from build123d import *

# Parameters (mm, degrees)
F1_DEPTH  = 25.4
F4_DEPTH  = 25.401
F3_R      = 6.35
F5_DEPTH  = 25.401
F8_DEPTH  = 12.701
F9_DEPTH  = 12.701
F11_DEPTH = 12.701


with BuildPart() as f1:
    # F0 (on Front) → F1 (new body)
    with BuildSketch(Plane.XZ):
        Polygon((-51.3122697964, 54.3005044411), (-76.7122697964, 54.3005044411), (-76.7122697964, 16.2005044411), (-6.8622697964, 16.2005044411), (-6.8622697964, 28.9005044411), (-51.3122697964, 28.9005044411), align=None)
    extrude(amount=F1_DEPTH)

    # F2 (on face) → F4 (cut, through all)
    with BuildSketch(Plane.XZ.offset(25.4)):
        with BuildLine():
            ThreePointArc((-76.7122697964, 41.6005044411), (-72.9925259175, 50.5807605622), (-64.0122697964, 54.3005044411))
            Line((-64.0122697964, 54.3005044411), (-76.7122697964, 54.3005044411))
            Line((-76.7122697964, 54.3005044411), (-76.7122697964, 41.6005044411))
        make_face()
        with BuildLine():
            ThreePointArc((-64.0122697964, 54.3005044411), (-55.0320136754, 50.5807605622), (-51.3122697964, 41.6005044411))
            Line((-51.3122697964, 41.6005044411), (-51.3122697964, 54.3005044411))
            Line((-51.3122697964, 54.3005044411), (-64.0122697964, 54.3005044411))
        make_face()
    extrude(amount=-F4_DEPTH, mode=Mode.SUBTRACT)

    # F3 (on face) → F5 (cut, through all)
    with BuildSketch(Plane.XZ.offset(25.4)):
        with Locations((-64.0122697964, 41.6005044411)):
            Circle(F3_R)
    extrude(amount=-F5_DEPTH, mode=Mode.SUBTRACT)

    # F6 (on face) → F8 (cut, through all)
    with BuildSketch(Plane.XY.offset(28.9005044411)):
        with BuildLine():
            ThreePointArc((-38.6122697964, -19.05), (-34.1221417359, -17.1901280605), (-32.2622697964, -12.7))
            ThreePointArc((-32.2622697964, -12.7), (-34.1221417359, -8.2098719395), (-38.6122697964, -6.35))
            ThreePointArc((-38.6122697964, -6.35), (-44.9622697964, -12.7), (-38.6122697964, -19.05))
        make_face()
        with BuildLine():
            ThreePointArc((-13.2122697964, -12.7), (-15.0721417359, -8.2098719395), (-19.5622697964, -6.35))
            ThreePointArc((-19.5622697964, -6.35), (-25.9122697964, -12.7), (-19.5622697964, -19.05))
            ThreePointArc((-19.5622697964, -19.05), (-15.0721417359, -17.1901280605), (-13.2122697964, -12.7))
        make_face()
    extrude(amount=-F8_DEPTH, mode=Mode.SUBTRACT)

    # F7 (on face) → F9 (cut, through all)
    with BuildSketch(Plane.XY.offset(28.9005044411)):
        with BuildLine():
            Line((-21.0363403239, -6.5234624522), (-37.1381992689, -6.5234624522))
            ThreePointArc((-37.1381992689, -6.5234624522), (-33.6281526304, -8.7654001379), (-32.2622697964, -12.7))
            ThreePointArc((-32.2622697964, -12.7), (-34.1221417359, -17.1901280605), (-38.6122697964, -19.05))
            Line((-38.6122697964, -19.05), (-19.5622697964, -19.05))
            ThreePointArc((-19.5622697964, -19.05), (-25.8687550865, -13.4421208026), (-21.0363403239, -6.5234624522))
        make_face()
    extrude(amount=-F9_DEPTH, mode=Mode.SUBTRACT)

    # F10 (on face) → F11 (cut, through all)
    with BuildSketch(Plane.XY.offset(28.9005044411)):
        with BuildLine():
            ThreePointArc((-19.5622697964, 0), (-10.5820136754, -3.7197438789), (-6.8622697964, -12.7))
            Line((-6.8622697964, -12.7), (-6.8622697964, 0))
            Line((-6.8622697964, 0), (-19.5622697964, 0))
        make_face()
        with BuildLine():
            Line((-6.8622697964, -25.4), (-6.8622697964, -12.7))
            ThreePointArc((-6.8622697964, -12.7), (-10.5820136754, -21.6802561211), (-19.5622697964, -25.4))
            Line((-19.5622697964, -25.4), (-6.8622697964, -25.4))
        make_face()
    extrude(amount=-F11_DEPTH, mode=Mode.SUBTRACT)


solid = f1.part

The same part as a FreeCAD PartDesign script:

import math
import FreeCAD as App
import Part
import Sketcher
Q = App.Units.Quantity

doc = App.newDocument("Part")
body = doc.addObject("PartDesign::Body", "Body")

# Sketch on XZ plane
sketch1 = doc.addObject("Sketcher::SketchObject", "Sketch")
body.addObject(sketch1)
sketch1.AttachmentSupport = (doc.XZ_Plane, [""])
sketch1.MapMode = "FlatFace"
sketch1.addGeometry(Part.LineSegment(App.Vector(-51, 54, 0), App.Vector(-77, 54, 0)), False)
sketch1.addGeometry(Part.LineSegment(App.Vector(-77, 54, 0), App.Vector(-77, 16, 0)), False)
sketch1.addGeometry(Part.LineSegment(App.Vector(-77, 16, 0), App.Vector(-7, 16, 0)), False)
sketch1.addGeometry(Part.LineSegment(App.Vector(-7, 16, 0), App.Vector(-7, 29, 0)), False)
sketch1.addGeometry(Part.LineSegment(App.Vector(-7, 29, 0), App.Vector(-51, 29, 0)), False)
sketch1.addGeometry(Part.LineSegment(App.Vector(-51, 29, 0), App.Vector(-51, 54, 0)), False)
sketch1.addConstraint(Sketcher.Constraint("Coincident", 0, 2, 1, 1))
sketch1.addConstraint(Sketcher.Constraint("Coincident", 1, 2, 2, 1))
sketch1.addConstraint(Sketcher.Constraint("Coincident", 2, 2, 3, 1))
sketch1.addConstraint(Sketcher.Constraint("Coincident", 3, 2, 4, 1))
sketch1.addConstraint(Sketcher.Constraint("Coincident", 4, 2, 5, 1))
sketch1.addConstraint(Sketcher.Constraint("Coincident", 5, 2, 0, 1))
sketch1.addConstraint(Sketcher.Constraint("Horizontal", 0))
sketch1.addConstraint(Sketcher.Constraint("Vertical", 1))
sketch1.addConstraint(Sketcher.Constraint("Horizontal", 2))
sketch1.addConstraint(Sketcher.Constraint("Vertical", 3))
sketch1.addConstraint(Sketcher.Constraint("Horizontal", 4))
sketch1.addConstraint(Sketcher.Constraint("Vertical", 5))
sketch1.addConstraint(Sketcher.Constraint("Equal", 0, 5))
sketch1.addConstraint(Sketcher.Constraint("DistanceX", 0, 2, 0, 1, Q("1 in")))
sketch1.addConstraint(Sketcher.Constraint("DistanceY", 1, 2, 1, 1, Q("1.5 in")))
sketch1.addConstraint(Sketcher.Constraint("DistanceX", 2, 1, 2, 2, Q("2.75 in")))
sketch1.addConstraint(Sketcher.Constraint("DistanceX", 0, 2, -1, 1, Q("76.71227 mm")))
sketch1.addConstraint(Sketcher.Constraint("DistanceY", -1, 1, 0, 2, Q("54.300504 mm")))
pad1 = doc.addObject("PartDesign::Pad", "Pad")
body.addObject(pad1)
pad1.Profile = sketch1
pad1.Length = Q("1 in")

# Sketch on XZ plane
sketch2 = doc.addObject("Sketcher::SketchObject", "Sketch001")
body.addObject(sketch2)
sketch2.AttachmentSupport = (doc.XZ_Plane, [""])
sketch2.MapMode = "FlatFace"
sketch2.AttachmentOffset = App.Placement(App.Vector(0, 0, 1 * 25.4), App.Rotation())
sketch2.addGeometry(Part.ArcOfCircle(Part.Circle(App.Vector(-64, 42, 0), App.Vector(0, 0, 1), 13), math.radians(90), math.radians(180)), False)
sketch2.addGeometry(Part.LineSegment(App.Vector(-64, 54, 0), App.Vector(-77, 54, 0)), False)
sketch2.addGeometry(Part.LineSegment(App.Vector(-77, 54, 0), App.Vector(-77, 42, 0)), False)
sketch2.addGeometry(Part.ArcOfCircle(Part.Circle(App.Vector(-64, 42, 0), App.Vector(0, 0, 1), 13), math.radians(0), math.radians(90)), False)
sketch2.addGeometry(Part.LineSegment(App.Vector(-51, 42, 0), App.Vector(-51, 54, 0)), False)
sketch2.addGeometry(Part.LineSegment(App.Vector(-51, 54, 0), App.Vector(-64, 54, 0)), False)
sketch2.addConstraint(Sketcher.Constraint("Tangent", 0, 1, 1, 1))
sketch2.addConstraint(Sketcher.Constraint("Coincident", 1, 2, 2, 1))
sketch2.addConstraint(Sketcher.Constraint("Tangent", 2, 2, 0, 2))
sketch2.addConstraint(Sketcher.Constraint("Tangent", 3, 1, 4, 1))
sketch2.addConstraint(Sketcher.Constraint("Coincident", 4, 2, 5, 1))
sketch2.addConstraint(Sketcher.Constraint("Tangent", 5, 2, 3, 2))
sketch2.addConstraint(Sketcher.Constraint("Horizontal", 1))
sketch2.addConstraint(Sketcher.Constraint("Vertical", 2))
sketch2.addConstraint(Sketcher.Constraint("Vertical", 4))
sketch2.addConstraint(Sketcher.Constraint("Horizontal", 5))
sketch2.addConstraint(Sketcher.Constraint("Coincident", 3, 3, 0, 3))
sketch2.addConstraint(Sketcher.Constraint("Equal", 0, 3))
sketch2.addConstraint(Sketcher.Constraint("Radius", 0, Q("0.5 in")))
sketch2.addConstraint(Sketcher.Constraint("DistanceX", 0, 3, -1, 1, Q("64.01227 mm")))
sketch2.addConstraint(Sketcher.Constraint("DistanceY", -1, 1, 0, 3, Q("41.600504 mm")))
pocket1 = doc.addObject("PartDesign::Pocket", "Pocket")
body.addObject(pocket1)
pocket1.Profile = sketch2
pocket1.Type = "ThroughAll"

# Sketch on XZ plane
sketch3 = doc.addObject("Sketcher::SketchObject", "Sketch002")
body.addObject(sketch3)
sketch3.AttachmentSupport = (doc.XZ_Plane, [""])
sketch3.MapMode = "FlatFace"
sketch3.AttachmentOffset = App.Placement(App.Vector(0, 0, 1 * 25.4), App.Rotation())
sketch3.addGeometry(Part.Circle(App.Vector(-64, 42, 0), App.Vector(0, 0, 1), 6), False)
sketch3.addConstraint(Sketcher.Constraint("Diameter", 0, Q("0.5 in")))
sketch3.addConstraint(Sketcher.Constraint("DistanceX", 0, 3, -1, 1, Q("64.01227 mm")))
sketch3.addConstraint(Sketcher.Constraint("DistanceY", -1, 1, 0, 3, Q("41.600504 mm")))
pocket2 = doc.addObject("PartDesign::Pocket", "Pocket001")
body.addObject(pocket2)
pocket2.Profile = sketch3
pocket2.Type = "ThroughAll"

# Sketch on XY plane
sketch4 = doc.addObject("Sketcher::SketchObject", "Sketch003")
body.addObject(sketch4)
sketch4.AttachmentSupport = (doc.XY_Plane, [""])
sketch4.MapMode = "FlatFace"
sketch4.AttachmentOffset = App.Placement(App.Vector(0, 0, 28.900504), App.Rotation())
sketch4.addGeometry(Part.ArcOfCircle(Part.Circle(App.Vector(-39, -13, 0), App.Vector(0, 0, 1), 6), math.radians(-90), math.radians(0)), False)
sketch4.addGeometry(Part.ArcOfCircle(Part.Circle(App.Vector(-39, -13, 0), App.Vector(0, 0, 1), 6), math.radians(0), math.radians(90)), False)
sketch4.addGeometry(Part.ArcOfCircle(Part.Circle(App.Vector(-39, -13, 0), App.Vector(0, 0, 1), 6), math.radians(90), math.radians(270)), False)
sketch4.addGeometry(Part.ArcOfCircle(Part.Circle(App.Vector(-20, -13, 0), App.Vector(0, 0, 1), 6), math.radians(0), math.radians(90)), False)
sketch4.addGeometry(Part.ArcOfCircle(Part.Circle(App.Vector(-20, -13, 0), App.Vector(0, 0, 1), 6), math.radians(90), math.radians(270)), False)
sketch4.addGeometry(Part.ArcOfCircle(Part.Circle(App.Vector(-20, -13, 0), App.Vector(0, 0, 1), 6), math.radians(-90), math.radians(0)), False)
sketch4.addConstraint(Sketcher.Constraint("Tangent", 0, 2, 1, 1))
sketch4.addConstraint(Sketcher.Constraint("Tangent", 1, 2, 2, 1))
sketch4.addConstraint(Sketcher.Constraint("Tangent", 2, 2, 0, 1))
sketch4.addConstraint(Sketcher.Constraint("Tangent", 3, 2, 4, 1))
sketch4.addConstraint(Sketcher.Constraint("Tangent", 4, 2, 5, 1))
sketch4.addConstraint(Sketcher.Constraint("Tangent", 5, 2, 3, 1))
sketch4.addConstraint(Sketcher.Constraint("Equal", 2, 3))
sketch4.addConstraint(Sketcher.Constraint("Horizontal", 2, 3, 3, 3))
sketch4.addConstraint(Sketcher.Constraint("Horizontal", 5, 3, 0, 2))
sketch4.addConstraint(Sketcher.Constraint("Horizontal", 0, 2, 5, 2))
sketch4.addConstraint(Sketcher.Constraint("Vertical", 2, 3, 1, 2))
sketch4.addConstraint(Sketcher.Constraint("Vertical", 1, 2, 2, 2))
sketch4.addConstraint(Sketcher.Constraint("Vertical", 5, 3, 3, 2))
sketch4.addConstraint(Sketcher.Constraint("Vertical", 3, 2, 4, 2))
sketch4.addConstraint(Sketcher.Constraint("Radius", 0, Q("0.25 in")))
sketch4.addConstraint(Sketcher.Constraint("DistanceY", 0, 3, -1, 1, Q("0.5 in")))
sketch4.addConstraint(Sketcher.Constraint("DistanceX", 0, 2, 3, 3, Q("0.5 in")))
sketch4.addConstraint(Sketcher.Constraint("DistanceX", 0, 3, -1, 1, Q("38.61227 mm")))
pocket3 = doc.addObject("PartDesign::Pocket", "Pocket002")
body.addObject(pocket3)
pocket3.Profile = sketch4
pocket3.Type = "ThroughAll"

# Sketch on XY plane
sketch5 = doc.addObject("Sketcher::SketchObject", "Sketch004")
body.addObject(sketch5)
sketch5.AttachmentSupport = (doc.XY_Plane, [""])
sketch5.MapMode = "FlatFace"
sketch5.AttachmentOffset = App.Placement(App.Vector(0, 0, 28.900504), App.Rotation())
sketch5.addGeometry(Part.LineSegment(App.Vector(-21, -7, 0), App.Vector(-37, -7, 0)), False)
sketch5.addGeometry(Part.ArcOfCircle(Part.Circle(App.Vector(-39, -13, 0), App.Vector(0, 0, 1), 6), math.radians(0), math.radians(77)), False)
sketch5.addGeometry(Part.ArcOfCircle(Part.Circle(App.Vector(-39, -13, 0), App.Vector(0, 0, 1), 6), math.radians(-90), math.radians(0)), False)
sketch5.addGeometry(Part.LineSegment(App.Vector(-39, -19, 0), App.Vector(-20, -19, 0)), False)
sketch5.addGeometry(Part.ArcOfCircle(Part.Circle(App.Vector(-20, -13, 0), App.Vector(0, 0, 1), 6), math.radians(103), math.radians(270)), False)
sketch5.addConstraint(Sketcher.Constraint("Coincident", 0, 2, 1, 2))
sketch5.addConstraint(Sketcher.Constraint("Tangent", 1, 1, 2, 2))
sketch5.addConstraint(Sketcher.Constraint("Tangent", 2, 1, 3, 1))
sketch5.addConstraint(Sketcher.Constraint("Tangent", 3, 2, 4, 2))
sketch5.addConstraint(Sketcher.Constraint("Coincident", 4, 1, 0, 1))
sketch5.addConstraint(Sketcher.Constraint("Horizontal", 0))
sketch5.addConstraint(Sketcher.Constraint("Horizontal", 3))
sketch5.addConstraint(Sketcher.Constraint("Equal", 1, 2))
sketch5.addConstraint(Sketcher.Constraint("Equal", 2, 4))
sketch5.addConstraint(Sketcher.Constraint("Horizontal", 4, 3, 1, 1))
sketch5.addConstraint(Sketcher.Constraint("Radius", 1, Q("0.25 in")))
sketch5.addConstraint(Sketcher.Constraint("DistanceX", 3, 1, 3, 2, Q("0.75 in")))
sketch5.addConstraint(Sketcher.Constraint("DistanceY", 1, 3, -1, 1, Q("0.5 in")))
sketch5.addConstraint(Sketcher.Constraint("DistanceX", 0, 2, 0, 1, Q("16.101859 mm")))
sketch5.addConstraint(Sketcher.Constraint("DistanceX", 0, 2, -1, 1, Q("37.138199 mm")))
pocket4 = doc.addObject("PartDesign::Pocket", "Pocket003")
body.addObject(pocket4)
pocket4.Profile = sketch5
pocket4.Type = "ThroughAll"

# Sketch on XY plane
sketch6 = doc.addObject("Sketcher::SketchObject", "Sketch005")
body.addObject(sketch6)
sketch6.AttachmentSupport = (doc.XY_Plane, [""])
sketch6.MapMode = "FlatFace"
sketch6.AttachmentOffset = App.Placement(App.Vector(0, 0, 28.900504), App.Rotation())
sketch6.addGeometry(Part.ArcOfCircle(Part.Circle(App.Vector(-20, -13, 0), App.Vector(0, 0, 1), 13), math.radians(0), math.radians(90)), False)
sketch6.addGeometry(Part.LineSegment(App.Vector(-7, -13, 0), App.Vector(-7, 0, 0)), False)
sketch6.addGeometry(Part.LineSegment(App.Vector(-7, 0, 0), App.Vector(-20, 0, 0)), False)
sketch6.addGeometry(Part.LineSegment(App.Vector(-7, -25, 0), App.Vector(-7, -13, 0)), False)
sketch6.addGeometry(Part.ArcOfCircle(Part.Circle(App.Vector(-20, -13, 0), App.Vector(0, 0, 1), 13), math.radians(-90), math.radians(0)), False)
sketch6.addGeometry(Part.LineSegment(App.Vector(-20, -25, 0), App.Vector(-7, -25, 0)), False)
sketch6.addConstraint(Sketcher.Constraint("Tangent", 0, 1, 1, 1))
sketch6.addConstraint(Sketcher.Constraint("Coincident", 1, 2, 2, 1))
sketch6.addConstraint(Sketcher.Constraint("Tangent", 2, 2, 0, 2))
sketch6.addConstraint(Sketcher.Constraint("Tangent", 3, 2, 4, 2))
sketch6.addConstraint(Sketcher.Constraint("Tangent", 4, 1, 5, 1))
sketch6.addConstraint(Sketcher.Constraint("Coincident", 5, 2, 3, 1))
sketch6.addConstraint(Sketcher.Constraint("Vertical", 1))
sketch6.addConstraint(Sketcher.Constraint("Horizontal", 2))
sketch6.addConstraint(Sketcher.Constraint("Vertical", 3))
sketch6.addConstraint(Sketcher.Constraint("Horizontal", 5))
sketch6.addConstraint(Sketcher.Constraint("Coincident", 4, 3, 0, 3))
sketch6.addConstraint(Sketcher.Constraint("Equal", 0, 4))
sketch6.addConstraint(Sketcher.Constraint("PointOnObject", 1, 2, -1))
sketch6.addConstraint(Sketcher.Constraint("Radius", 0, Q("0.5 in")))
sketch6.addConstraint(Sketcher.Constraint("DistanceX", 0, 3, -1, 1, Q("19.56227 mm")))
pocket5 = doc.addObject("PartDesign::Pocket", "Pocket004")
body.addObject(pocket5)
pocket5.Profile = sketch6
pocket5.Type = "ThroughAll"

doc.recompute()
